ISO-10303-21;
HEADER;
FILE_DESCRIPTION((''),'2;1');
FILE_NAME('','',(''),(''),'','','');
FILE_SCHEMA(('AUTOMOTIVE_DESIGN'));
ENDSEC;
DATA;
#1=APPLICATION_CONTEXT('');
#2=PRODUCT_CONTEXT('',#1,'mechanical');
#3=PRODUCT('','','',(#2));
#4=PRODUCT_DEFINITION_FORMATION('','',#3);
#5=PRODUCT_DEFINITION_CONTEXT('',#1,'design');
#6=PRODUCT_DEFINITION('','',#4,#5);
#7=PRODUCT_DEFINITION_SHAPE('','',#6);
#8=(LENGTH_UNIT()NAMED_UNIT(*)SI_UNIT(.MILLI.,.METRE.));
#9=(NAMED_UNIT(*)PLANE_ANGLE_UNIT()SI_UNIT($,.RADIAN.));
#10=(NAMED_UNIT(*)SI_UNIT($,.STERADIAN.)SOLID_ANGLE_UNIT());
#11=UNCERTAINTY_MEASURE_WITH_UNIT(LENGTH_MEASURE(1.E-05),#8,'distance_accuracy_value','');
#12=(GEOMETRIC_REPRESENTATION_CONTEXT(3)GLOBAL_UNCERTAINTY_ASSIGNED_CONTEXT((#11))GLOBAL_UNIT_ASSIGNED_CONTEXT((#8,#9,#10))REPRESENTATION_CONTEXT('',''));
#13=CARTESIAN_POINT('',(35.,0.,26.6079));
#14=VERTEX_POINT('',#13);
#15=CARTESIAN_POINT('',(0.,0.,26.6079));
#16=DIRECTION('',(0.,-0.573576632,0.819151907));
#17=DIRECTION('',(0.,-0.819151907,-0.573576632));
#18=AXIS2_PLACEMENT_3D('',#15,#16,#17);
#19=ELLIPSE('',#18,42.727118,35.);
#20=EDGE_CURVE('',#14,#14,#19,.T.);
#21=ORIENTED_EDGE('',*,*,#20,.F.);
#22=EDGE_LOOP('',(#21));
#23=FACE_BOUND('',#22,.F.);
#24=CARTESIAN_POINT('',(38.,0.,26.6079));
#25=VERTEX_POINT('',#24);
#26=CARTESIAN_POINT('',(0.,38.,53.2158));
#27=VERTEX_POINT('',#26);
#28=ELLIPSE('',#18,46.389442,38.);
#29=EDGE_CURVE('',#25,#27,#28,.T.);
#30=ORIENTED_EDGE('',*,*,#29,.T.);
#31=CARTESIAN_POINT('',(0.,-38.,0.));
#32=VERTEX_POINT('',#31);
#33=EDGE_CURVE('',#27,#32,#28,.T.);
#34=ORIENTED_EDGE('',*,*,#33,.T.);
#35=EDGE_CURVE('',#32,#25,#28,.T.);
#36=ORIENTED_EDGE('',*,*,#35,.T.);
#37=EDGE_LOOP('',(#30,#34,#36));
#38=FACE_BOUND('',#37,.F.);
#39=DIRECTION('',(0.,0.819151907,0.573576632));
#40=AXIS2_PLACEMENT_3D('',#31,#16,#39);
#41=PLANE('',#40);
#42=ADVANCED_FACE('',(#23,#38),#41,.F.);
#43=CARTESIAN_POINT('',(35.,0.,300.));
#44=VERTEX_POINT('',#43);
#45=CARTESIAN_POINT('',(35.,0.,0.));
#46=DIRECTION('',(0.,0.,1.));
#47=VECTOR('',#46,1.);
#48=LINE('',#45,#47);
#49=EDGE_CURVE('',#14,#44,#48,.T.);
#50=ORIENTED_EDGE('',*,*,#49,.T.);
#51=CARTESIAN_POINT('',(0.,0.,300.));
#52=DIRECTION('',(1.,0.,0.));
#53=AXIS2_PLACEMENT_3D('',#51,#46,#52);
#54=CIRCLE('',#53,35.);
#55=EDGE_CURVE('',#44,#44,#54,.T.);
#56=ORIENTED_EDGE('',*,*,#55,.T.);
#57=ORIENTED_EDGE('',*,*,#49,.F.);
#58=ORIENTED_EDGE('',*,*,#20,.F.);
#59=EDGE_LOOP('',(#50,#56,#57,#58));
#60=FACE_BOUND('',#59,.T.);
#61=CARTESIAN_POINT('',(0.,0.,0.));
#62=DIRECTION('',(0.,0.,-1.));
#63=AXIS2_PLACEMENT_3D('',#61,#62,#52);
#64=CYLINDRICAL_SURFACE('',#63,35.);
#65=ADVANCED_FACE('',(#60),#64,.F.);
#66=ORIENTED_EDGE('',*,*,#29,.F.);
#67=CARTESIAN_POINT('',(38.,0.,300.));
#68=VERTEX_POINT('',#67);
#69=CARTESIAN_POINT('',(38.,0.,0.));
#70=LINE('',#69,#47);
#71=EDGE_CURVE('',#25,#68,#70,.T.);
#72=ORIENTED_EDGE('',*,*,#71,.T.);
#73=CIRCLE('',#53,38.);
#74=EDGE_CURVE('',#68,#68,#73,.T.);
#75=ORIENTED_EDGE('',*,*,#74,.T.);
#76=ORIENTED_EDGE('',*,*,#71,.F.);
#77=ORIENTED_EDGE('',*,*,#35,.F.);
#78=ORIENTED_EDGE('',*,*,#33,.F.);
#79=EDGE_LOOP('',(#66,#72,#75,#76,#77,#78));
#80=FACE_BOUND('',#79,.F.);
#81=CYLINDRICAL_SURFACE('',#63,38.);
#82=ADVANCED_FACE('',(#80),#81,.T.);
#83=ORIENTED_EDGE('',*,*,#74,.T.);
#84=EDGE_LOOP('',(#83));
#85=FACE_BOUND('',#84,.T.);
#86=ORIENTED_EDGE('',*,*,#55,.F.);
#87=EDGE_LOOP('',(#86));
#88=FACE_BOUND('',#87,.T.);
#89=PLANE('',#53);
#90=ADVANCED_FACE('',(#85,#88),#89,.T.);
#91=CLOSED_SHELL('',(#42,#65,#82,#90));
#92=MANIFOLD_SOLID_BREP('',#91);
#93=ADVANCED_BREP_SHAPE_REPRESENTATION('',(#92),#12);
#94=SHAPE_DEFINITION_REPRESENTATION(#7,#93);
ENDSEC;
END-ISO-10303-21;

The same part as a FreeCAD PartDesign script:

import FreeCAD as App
import Part
import Sketcher
Q = App.Units.Quantity

doc = App.newDocument("Part")
params = doc.addObject("Spreadsheet::Sheet", "Params")
for row, (alias, value) in enumerate([
    ("sketch1_diameter", "76 mm"),
    ("sketch1_diameter2", "70 mm"),
    ("pad1_length", "300 mm"),
    ("sketch2_width", "76 mm"),
    ("pocket1_length", "300 mm"),
], start=1):
    params.set(f"A{row}", alias)
    params.set(f"B{row}", "=" + value)
    params.setAlias(f"B{row}", alias)

body = doc.addObject("PartDesign::Body", "Body")

# Sketch on XY plane
sketch1 = body.newObject("Sketcher::SketchObject", "Sketch")
sketch1.AttachmentSupport = (doc.getObject("XY_Plane"), [""])
sketch1.MapMode = "FlatFace"
sketch1.addGeometry([
    Part.Circle(App.Vector(0, 0, 0), App.Vector(0, 0, 1), 38),
    Part.Circle(App.Vector(0, 0, 0), App.Vector(0, 0, 1), 35),
], False)
sketch1.addConstraint([
    Sketcher.Constraint("Coincident", 0, 3, -1, 1),
    Sketcher.Constraint("Coincident", 1, 3, -1, 1),
    Sketcher.Constraint("Diameter", 0, 76.0),
    Sketcher.Constraint("Diameter", 1, 70.0),
])
sketch1.setExpression("Constraints[2]", "Params.sketch1_diameter")
sketch1.setExpression("Constraints[3]", "Params.sketch1_diameter2")
pad1 = body.newObject("PartDesign::Pad", "Pad")
pad1.Profile = sketch1
pad1.setExpression("Length", "Params.pad1_length")

# Sketch on YZ plane
sketch2 = body.newObject("Sketcher::SketchObject", "Sketch001")
sketch2.AttachmentSupport = (doc.getObject("YZ_Plane"), [""])
sketch2.MapMode = "FlatFace"
sketch2.addGeometry([
    Part.LineSegment(App.Vector(-38, 0, 0), App.Vector(38, 0, 0)),
    Part.LineSegment(App.Vector(38, 0, 0), App.Vector(38, 53, 0)),
    Part.LineSegment(App.Vector(38, 53, 0), App.Vector(-38, 0, 0)),
], False)
sketch2.addConstraint([
    Sketcher.Constraint("Coincident", 0, 2, 1, 1),
    Sketcher.Constraint("Coincident", 1, 2, 2, 1),
    Sketcher.Constraint("Coincident", 2, 2, 0, 1),
    Sketcher.Constraint("Horizontal", 0),
    Sketcher.Constraint("Vertical", 1),
    Sketcher.Constraint("Symmetric", 0, 2, 2, 2, -1, 1),
    Sketcher.Constraint("DistanceX", 0, 1, 0, 2, 76.0),
    Sketcher.Constraint("Angle", 2, Q("-145 deg")),
])
sketch2.setExpression("Constraints[6]", "Params.sketch2_width")
pocket1 = body.newObject("PartDesign::Pocket", "Pocket")
pocket1.Profile = sketch2
pocket1.setExpression("Length", "Params.pocket1_length")
pocket1.Midplane = True

doc.recompute()
